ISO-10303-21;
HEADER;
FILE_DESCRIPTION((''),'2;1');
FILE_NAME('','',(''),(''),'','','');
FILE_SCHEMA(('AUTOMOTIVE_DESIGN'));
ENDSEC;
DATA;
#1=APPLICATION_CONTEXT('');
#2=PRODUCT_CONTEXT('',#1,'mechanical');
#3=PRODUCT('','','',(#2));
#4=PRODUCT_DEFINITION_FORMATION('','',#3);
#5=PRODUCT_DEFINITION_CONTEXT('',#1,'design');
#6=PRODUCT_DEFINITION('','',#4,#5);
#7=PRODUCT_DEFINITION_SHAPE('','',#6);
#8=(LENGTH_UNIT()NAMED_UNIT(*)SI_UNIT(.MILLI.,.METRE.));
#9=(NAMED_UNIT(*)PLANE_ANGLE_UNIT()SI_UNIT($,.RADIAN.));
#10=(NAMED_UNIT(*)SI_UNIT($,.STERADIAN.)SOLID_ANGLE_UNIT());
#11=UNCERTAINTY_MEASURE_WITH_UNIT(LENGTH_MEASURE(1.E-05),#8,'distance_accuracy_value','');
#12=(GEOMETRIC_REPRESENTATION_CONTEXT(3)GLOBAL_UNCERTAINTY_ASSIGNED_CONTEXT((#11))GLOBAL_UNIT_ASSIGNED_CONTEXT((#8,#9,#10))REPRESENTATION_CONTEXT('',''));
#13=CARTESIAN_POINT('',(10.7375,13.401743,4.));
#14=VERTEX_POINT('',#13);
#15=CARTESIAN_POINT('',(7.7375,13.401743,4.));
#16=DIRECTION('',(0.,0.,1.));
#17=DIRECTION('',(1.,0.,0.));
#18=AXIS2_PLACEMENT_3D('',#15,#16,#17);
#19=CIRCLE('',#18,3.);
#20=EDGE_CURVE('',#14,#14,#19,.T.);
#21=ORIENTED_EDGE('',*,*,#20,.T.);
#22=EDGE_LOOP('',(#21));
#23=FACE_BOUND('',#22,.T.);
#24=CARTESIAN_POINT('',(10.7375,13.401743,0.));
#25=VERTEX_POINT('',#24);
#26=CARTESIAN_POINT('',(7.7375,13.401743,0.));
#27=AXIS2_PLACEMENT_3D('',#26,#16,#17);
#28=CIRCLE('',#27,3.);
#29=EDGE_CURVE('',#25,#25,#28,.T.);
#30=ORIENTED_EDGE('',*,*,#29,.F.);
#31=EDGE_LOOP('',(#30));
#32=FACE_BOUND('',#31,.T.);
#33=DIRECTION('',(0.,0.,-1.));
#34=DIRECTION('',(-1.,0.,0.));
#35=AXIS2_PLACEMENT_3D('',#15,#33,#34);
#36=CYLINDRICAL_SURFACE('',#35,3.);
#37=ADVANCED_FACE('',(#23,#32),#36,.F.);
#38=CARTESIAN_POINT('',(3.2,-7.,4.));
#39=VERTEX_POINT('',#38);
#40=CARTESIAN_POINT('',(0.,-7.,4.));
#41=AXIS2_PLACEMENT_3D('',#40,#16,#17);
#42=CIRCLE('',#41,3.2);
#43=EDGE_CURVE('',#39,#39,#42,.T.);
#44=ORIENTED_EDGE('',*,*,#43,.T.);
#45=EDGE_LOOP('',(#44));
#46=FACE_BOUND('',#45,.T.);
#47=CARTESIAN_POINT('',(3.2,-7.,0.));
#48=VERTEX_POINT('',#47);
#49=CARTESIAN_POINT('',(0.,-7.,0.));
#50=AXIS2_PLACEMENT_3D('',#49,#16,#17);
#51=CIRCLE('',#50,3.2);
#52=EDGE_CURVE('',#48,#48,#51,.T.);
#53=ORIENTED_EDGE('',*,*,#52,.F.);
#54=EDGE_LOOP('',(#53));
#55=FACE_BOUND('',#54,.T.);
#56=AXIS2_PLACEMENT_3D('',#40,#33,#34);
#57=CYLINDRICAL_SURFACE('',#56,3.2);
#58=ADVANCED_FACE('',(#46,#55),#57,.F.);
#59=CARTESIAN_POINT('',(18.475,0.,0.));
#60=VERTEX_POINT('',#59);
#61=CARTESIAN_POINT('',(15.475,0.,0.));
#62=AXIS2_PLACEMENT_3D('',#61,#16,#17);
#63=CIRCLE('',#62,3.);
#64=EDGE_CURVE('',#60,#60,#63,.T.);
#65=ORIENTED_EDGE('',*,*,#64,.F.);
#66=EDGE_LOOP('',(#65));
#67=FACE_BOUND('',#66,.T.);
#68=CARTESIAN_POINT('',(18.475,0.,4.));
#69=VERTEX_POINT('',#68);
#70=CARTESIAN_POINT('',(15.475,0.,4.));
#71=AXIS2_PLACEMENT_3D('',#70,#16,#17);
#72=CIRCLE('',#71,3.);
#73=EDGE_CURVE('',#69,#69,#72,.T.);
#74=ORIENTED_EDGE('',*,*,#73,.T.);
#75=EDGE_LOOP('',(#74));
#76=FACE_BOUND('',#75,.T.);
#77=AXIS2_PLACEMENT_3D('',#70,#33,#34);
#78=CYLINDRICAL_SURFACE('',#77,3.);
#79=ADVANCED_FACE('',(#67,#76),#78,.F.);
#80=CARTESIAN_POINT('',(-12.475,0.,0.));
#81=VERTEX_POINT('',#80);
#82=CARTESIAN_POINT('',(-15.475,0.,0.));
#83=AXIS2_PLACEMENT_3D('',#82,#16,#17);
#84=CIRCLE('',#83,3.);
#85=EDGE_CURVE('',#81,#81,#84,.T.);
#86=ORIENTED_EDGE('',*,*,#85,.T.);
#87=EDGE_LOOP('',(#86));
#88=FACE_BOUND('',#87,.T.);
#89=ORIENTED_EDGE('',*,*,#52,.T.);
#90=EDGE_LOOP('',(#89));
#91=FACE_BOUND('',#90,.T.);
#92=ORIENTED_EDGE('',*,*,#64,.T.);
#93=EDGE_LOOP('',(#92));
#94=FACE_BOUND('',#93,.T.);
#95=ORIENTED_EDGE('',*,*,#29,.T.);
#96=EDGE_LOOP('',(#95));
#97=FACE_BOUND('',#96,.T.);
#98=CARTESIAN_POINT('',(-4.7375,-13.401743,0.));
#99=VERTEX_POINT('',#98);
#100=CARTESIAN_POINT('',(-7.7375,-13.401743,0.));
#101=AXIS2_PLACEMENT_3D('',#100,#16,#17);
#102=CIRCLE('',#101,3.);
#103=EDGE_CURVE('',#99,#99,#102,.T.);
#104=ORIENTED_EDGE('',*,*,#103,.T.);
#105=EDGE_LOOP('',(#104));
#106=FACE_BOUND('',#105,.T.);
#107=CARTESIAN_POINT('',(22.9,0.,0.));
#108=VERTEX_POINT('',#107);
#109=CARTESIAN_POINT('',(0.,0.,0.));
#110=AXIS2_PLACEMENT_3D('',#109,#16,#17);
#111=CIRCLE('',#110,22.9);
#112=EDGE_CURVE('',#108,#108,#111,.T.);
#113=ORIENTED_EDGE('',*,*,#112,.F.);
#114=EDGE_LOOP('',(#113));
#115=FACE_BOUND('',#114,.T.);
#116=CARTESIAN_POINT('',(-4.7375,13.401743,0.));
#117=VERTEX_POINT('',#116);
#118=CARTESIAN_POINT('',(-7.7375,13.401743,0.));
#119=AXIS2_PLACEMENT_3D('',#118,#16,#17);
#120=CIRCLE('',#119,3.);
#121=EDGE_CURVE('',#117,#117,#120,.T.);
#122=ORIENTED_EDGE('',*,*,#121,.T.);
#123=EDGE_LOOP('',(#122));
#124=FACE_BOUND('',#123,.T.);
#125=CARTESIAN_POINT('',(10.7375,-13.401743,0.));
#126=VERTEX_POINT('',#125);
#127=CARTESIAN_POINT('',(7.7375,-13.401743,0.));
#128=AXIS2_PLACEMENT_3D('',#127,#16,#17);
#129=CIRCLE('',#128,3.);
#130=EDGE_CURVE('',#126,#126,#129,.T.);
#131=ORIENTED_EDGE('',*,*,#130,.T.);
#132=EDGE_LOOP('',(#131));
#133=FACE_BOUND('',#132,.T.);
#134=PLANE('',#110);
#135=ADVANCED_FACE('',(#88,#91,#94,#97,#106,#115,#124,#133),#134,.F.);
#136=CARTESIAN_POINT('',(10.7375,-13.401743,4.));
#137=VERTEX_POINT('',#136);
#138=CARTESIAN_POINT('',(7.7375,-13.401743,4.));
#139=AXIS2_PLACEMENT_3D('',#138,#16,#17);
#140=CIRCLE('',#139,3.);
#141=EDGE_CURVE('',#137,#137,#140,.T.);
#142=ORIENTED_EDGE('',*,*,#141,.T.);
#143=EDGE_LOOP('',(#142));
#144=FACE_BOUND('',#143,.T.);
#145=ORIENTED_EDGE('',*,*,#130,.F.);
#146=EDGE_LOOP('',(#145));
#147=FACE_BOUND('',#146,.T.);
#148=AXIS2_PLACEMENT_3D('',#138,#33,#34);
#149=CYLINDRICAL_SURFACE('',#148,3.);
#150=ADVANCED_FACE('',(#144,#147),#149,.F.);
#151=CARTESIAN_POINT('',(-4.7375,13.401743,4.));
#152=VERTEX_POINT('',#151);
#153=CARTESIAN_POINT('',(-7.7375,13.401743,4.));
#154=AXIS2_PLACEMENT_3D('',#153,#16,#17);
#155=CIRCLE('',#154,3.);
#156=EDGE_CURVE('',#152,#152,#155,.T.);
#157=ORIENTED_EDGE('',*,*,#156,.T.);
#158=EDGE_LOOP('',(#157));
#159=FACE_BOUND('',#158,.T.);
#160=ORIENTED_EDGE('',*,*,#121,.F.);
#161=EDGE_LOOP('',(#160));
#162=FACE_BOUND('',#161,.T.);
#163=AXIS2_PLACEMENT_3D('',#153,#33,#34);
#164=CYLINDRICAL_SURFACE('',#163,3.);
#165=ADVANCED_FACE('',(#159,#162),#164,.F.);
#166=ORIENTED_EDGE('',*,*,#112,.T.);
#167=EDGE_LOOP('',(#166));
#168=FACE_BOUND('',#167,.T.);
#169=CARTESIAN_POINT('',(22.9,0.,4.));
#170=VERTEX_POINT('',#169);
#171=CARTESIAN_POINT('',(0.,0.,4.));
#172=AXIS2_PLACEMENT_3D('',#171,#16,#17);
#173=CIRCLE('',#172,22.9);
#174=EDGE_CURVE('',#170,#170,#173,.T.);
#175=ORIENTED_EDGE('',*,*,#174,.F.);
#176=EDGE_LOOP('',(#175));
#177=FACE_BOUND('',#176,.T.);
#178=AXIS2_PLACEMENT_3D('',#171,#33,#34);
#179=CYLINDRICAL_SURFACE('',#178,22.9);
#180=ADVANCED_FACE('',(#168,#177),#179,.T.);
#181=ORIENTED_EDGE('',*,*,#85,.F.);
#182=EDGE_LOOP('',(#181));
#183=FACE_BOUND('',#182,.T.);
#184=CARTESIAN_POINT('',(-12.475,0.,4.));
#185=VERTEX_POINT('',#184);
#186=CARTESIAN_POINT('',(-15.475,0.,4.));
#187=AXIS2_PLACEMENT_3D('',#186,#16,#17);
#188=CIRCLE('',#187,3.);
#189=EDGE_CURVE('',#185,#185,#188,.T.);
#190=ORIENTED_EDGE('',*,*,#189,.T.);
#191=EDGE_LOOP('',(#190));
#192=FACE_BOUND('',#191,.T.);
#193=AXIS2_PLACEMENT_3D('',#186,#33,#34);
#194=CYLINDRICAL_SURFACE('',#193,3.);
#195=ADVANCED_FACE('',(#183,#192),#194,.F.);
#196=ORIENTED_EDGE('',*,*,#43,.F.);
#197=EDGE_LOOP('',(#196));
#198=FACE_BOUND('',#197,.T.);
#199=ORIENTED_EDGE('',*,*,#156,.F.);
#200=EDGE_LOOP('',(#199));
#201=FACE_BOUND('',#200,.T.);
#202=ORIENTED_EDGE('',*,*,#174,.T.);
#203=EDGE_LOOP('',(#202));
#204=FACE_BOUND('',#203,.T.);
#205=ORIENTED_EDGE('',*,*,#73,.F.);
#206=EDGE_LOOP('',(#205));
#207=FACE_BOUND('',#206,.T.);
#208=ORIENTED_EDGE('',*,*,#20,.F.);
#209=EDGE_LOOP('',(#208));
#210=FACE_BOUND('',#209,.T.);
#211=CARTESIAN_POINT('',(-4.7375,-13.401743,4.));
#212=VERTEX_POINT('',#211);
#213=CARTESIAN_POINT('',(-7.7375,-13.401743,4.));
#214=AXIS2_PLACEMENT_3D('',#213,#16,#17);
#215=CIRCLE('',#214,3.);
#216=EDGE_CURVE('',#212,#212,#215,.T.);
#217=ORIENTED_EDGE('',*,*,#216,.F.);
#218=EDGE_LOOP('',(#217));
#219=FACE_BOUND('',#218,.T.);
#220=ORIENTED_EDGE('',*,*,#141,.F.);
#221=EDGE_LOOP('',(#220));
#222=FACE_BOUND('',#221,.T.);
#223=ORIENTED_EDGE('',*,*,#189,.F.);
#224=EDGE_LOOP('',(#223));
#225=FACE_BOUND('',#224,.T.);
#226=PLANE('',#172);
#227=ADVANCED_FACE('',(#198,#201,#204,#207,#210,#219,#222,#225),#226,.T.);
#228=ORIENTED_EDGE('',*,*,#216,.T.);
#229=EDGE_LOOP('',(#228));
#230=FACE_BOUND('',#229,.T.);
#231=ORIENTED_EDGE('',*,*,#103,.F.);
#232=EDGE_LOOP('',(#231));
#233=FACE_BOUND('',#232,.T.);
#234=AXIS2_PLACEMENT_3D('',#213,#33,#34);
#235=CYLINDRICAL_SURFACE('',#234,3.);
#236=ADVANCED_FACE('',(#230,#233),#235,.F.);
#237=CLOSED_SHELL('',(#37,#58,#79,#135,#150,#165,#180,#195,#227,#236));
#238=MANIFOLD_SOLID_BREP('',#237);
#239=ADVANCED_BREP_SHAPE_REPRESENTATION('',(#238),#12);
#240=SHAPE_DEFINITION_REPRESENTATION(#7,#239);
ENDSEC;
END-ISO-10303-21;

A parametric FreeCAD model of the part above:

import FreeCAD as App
import Part
import Sketcher
from FreeCAD import Vector

doc = App.newDocument("Part")
body = doc.addObject("PartDesign::Body", "Body")

# Sketch on XY plane
sketch1 = body.newObject("Sketcher::SketchObject", "Sketch")
sketch1.AttachmentSupport = (doc.getObject("XY_Plane"), [""])
sketch1.MapMode = "FlatFace"
sketch1.addGeometry(Part.Circle(Vector(0, 0, 0), Vector(0, 0, 1), 22.9), False)
sketch1.addGeometry(Part.Circle(Vector(-7.7, -13.4, 0), Vector(0, 0, 1), 3), False)
sketch1.addGeometry(Part.Circle(Vector(0, -7, 0), Vector(0, 0, 1), 3.2), False)
sketch1.addGeometry(Part.Circle(Vector(7.7, -13.4, 0), Vector(0, 0, 1), 3), False)
sketch1.addGeometry(Part.Circle(Vector(-15.5, 0, 0), Vector(0, 0, 1), 3), False)
sketch1.addGeometry(Part.Circle(Vector(-7.7, 13.4, 0), Vector(0, 0, 1), 3), False)
sketch1.addGeometry(Part.Circle(Vector(15.5, 0, 0), Vector(0, 0, 1), 3), False)
sketch1.addGeometry(Part.Circle(Vector(7.7, 13.4, 0), Vector(0, 0, 1), 3), False)
sketch1.addConstraint(Sketcher.Constraint("Coincident", 0, 3, -1, 1))
sketch1.addConstraint(Sketcher.Constraint("Equal", 1, 3))
sketch1.addConstraint(Sketcher.Constraint("Equal", 3, 4))
sketch1.addConstraint(Sketcher.Constraint("Equal", 4, 5))
sketch1.addConstraint(Sketcher.Constraint("Equal", 5, 6))
sketch1.addConstraint(Sketcher.Constraint("Equal", 6, 7))
sketch1.addConstraint(Sketcher.Constraint("Symmetric", 3, 3, 5, 3, -1, 1))
sketch1.addConstraint(Sketcher.Constraint("Symmetric", 4, 3, 6, 3, -1, 1))
sketch1.addConstraint(Sketcher.Constraint("Symmetric", 1, 3, 7, 3, -1, 1))
sketch1.addConstraint(Sketcher.Constraint("Symmetric", 1, 3, 3, 3, -2))
sketch1.addConstraint(Sketcher.Constraint("PointOnObject", 2, 3, -2))
sketch1.addConstraint(Sketcher.Constraint("PointOnObject", 4, 3, -1))
sketch1.addConstraint(Sketcher.Constraint("Diameter", 1, 6.0))
sketch1.addConstraint(Sketcher.Constraint("Diameter", 0, 45.8))
sketch1.addConstraint(Sketcher.Constraint("Diameter", 2, 6.4))
sketch1.addConstraint(Sketcher.Constraint("DistanceY", 2, 3, -1, 1, 7.0))
sketch1.addConstraint(Sketcher.Constraint("DistanceX", 4, 3, -1, 1, 15.475))
sketch1.addConstraint(Sketcher.Constraint("DistanceX", 1, 3, 3, 3, 15.475))
sketch1.addConstraint(Sketcher.Constraint("DistanceY", 1, 3, -1, 1, 13.401743))
pad1 = body.newObject("PartDesign::Pad", "Pad")
pad1.Profile = sketch1
pad1.Length = 4

doc.recompute()
